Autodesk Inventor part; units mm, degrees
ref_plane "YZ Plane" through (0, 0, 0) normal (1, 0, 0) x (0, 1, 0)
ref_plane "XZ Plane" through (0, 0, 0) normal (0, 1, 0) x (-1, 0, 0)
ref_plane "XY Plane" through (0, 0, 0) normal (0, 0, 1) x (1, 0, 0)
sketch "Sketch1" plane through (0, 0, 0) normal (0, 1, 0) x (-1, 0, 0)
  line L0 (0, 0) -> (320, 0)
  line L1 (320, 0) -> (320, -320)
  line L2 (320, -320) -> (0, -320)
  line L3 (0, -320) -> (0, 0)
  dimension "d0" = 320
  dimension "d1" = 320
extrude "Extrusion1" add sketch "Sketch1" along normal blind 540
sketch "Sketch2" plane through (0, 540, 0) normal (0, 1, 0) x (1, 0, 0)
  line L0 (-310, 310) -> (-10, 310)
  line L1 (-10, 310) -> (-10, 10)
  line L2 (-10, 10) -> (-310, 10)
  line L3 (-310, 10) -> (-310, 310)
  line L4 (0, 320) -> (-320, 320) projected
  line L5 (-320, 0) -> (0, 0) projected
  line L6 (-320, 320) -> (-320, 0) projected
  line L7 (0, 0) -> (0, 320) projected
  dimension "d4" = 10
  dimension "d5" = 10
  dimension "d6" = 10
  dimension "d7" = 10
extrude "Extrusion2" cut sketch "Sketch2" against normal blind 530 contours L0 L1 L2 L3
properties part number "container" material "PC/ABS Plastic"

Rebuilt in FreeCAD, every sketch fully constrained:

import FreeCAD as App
import Part
import Sketcher

V = App.Vector
Q = App.Units.Quantity


def add_polygon(sketch, points):
    """Adds a closed chain of lines whose ends are joined by coincident constraints."""
    first, n = sketch.GeometryCount, len(points)
    for a, b in zip(points, points[1:] + points[:1]):
        sketch.addGeometry(Part.LineSegment(App.Vector(*a, 0), App.Vector(*b, 0)), False)
    for i in range(n):
        sketch.addConstraint(Sketcher.Constraint("Coincident", first + i, 2, first + (i + 1) % n, 1))

doc = App.newDocument("Part")
params = doc.addObject("Spreadsheet::Sheet", "Params")
for row, (alias, value) in enumerate([
    ("sketch1_width", "320 mm"),
    ("pad1_length", "540 mm"),
    ("sketch2_width", "300 mm"),
    ("pocket1_length", "530 mm"),
], start=1):
    params.set(f"A{row}", alias)
    params.set(f"B{row}", "=" + value)
    params.setAlias(f"B{row}", alias)

body = doc.addObject("PartDesign::Body", "Body")

sketch1 = doc.addObject("Sketcher::SketchObject", "Sketch")
body.addObject(sketch1)
sketch1.AttachmentSupport = (doc.XZ_Plane, [""])
sketch1.MapMode = "FlatFace"
add_polygon(sketch1, [(-320, 0), (0, 0), (0, -320), (-320, -320)])
sketch1.addConstraint(Sketcher.Constraint("Horizontal", 0))
sketch1.addConstraint(Sketcher.Constraint("Vertical", 1))
sketch1.addConstraint(Sketcher.Constraint("Horizontal", 2))
sketch1.addConstraint(Sketcher.Constraint("Vertical", 3))
sketch1.addConstraint(Sketcher.Constraint("Coincident", 0, 2, -1, 1))
sketch1.addConstraint(Sketcher.Constraint("Equal", 2, 1))
sketch1.addConstraint(Sketcher.Constraint("DistanceX", 0, 1, 0, 2, Q("320 mm")))
sketch1.setExpression("Constraints[10]", "Params.sketch1_width")
pad1 = doc.addObject("PartDesign::Pad", "Pad")
body.addObject(pad1)
pad1.Profile = sketch1
pad1.setExpression("Length", "Params.pad1_length")
pad1.Reversed = True

sketch2 = doc.addObject("Sketcher::SketchObject", "Sketch001")
body.addObject(sketch2)
sketch2.AttachmentSupport = (doc.XZ_Plane, [""])
sketch2.MapMode = "FlatFace"
sketch2.AttachmentOffset = App.Placement(V(0, 0, -540), App.Rotation())
add_polygon(sketch2, [(-10, -310), (-310, -310), (-310, -10), (-10, -10)])
sketch2.addConstraint(Sketcher.Constraint("Horizontal", 0))
sketch2.addConstraint(Sketcher.Constraint("Vertical", 1))
sketch2.addConstraint(Sketcher.Constraint("Horizontal", 2))
sketch2.addConstraint(Sketcher.Constraint("Vertical", 3))
sketch2.addConstraint(Sketcher.Constraint("Equal", 2, 1))
sketch2.addConstraint(Sketcher.Constraint("DistanceY", 1, 2, -1, 1, Q("10 mm")))
sketch2.addConstraint(Sketcher.Constraint("DistanceX", 2, 2, -1, 1, Q("10 mm")))
sketch2.addConstraint(Sketcher.Constraint("DistanceX", 0, 2, 0, 1, Q("300 mm")))
sketch2.setExpression("Constraints[11]", "Params.sketch2_width")
pocket1 = doc.addObject("PartDesign::Pocket", "Pocket")
body.addObject(pocket1)
pocket1.Profile = sketch2
pocket1.setExpression("Length", "Params.pocket1_length")
pocket1.Reversed = True

doc.recompute()
